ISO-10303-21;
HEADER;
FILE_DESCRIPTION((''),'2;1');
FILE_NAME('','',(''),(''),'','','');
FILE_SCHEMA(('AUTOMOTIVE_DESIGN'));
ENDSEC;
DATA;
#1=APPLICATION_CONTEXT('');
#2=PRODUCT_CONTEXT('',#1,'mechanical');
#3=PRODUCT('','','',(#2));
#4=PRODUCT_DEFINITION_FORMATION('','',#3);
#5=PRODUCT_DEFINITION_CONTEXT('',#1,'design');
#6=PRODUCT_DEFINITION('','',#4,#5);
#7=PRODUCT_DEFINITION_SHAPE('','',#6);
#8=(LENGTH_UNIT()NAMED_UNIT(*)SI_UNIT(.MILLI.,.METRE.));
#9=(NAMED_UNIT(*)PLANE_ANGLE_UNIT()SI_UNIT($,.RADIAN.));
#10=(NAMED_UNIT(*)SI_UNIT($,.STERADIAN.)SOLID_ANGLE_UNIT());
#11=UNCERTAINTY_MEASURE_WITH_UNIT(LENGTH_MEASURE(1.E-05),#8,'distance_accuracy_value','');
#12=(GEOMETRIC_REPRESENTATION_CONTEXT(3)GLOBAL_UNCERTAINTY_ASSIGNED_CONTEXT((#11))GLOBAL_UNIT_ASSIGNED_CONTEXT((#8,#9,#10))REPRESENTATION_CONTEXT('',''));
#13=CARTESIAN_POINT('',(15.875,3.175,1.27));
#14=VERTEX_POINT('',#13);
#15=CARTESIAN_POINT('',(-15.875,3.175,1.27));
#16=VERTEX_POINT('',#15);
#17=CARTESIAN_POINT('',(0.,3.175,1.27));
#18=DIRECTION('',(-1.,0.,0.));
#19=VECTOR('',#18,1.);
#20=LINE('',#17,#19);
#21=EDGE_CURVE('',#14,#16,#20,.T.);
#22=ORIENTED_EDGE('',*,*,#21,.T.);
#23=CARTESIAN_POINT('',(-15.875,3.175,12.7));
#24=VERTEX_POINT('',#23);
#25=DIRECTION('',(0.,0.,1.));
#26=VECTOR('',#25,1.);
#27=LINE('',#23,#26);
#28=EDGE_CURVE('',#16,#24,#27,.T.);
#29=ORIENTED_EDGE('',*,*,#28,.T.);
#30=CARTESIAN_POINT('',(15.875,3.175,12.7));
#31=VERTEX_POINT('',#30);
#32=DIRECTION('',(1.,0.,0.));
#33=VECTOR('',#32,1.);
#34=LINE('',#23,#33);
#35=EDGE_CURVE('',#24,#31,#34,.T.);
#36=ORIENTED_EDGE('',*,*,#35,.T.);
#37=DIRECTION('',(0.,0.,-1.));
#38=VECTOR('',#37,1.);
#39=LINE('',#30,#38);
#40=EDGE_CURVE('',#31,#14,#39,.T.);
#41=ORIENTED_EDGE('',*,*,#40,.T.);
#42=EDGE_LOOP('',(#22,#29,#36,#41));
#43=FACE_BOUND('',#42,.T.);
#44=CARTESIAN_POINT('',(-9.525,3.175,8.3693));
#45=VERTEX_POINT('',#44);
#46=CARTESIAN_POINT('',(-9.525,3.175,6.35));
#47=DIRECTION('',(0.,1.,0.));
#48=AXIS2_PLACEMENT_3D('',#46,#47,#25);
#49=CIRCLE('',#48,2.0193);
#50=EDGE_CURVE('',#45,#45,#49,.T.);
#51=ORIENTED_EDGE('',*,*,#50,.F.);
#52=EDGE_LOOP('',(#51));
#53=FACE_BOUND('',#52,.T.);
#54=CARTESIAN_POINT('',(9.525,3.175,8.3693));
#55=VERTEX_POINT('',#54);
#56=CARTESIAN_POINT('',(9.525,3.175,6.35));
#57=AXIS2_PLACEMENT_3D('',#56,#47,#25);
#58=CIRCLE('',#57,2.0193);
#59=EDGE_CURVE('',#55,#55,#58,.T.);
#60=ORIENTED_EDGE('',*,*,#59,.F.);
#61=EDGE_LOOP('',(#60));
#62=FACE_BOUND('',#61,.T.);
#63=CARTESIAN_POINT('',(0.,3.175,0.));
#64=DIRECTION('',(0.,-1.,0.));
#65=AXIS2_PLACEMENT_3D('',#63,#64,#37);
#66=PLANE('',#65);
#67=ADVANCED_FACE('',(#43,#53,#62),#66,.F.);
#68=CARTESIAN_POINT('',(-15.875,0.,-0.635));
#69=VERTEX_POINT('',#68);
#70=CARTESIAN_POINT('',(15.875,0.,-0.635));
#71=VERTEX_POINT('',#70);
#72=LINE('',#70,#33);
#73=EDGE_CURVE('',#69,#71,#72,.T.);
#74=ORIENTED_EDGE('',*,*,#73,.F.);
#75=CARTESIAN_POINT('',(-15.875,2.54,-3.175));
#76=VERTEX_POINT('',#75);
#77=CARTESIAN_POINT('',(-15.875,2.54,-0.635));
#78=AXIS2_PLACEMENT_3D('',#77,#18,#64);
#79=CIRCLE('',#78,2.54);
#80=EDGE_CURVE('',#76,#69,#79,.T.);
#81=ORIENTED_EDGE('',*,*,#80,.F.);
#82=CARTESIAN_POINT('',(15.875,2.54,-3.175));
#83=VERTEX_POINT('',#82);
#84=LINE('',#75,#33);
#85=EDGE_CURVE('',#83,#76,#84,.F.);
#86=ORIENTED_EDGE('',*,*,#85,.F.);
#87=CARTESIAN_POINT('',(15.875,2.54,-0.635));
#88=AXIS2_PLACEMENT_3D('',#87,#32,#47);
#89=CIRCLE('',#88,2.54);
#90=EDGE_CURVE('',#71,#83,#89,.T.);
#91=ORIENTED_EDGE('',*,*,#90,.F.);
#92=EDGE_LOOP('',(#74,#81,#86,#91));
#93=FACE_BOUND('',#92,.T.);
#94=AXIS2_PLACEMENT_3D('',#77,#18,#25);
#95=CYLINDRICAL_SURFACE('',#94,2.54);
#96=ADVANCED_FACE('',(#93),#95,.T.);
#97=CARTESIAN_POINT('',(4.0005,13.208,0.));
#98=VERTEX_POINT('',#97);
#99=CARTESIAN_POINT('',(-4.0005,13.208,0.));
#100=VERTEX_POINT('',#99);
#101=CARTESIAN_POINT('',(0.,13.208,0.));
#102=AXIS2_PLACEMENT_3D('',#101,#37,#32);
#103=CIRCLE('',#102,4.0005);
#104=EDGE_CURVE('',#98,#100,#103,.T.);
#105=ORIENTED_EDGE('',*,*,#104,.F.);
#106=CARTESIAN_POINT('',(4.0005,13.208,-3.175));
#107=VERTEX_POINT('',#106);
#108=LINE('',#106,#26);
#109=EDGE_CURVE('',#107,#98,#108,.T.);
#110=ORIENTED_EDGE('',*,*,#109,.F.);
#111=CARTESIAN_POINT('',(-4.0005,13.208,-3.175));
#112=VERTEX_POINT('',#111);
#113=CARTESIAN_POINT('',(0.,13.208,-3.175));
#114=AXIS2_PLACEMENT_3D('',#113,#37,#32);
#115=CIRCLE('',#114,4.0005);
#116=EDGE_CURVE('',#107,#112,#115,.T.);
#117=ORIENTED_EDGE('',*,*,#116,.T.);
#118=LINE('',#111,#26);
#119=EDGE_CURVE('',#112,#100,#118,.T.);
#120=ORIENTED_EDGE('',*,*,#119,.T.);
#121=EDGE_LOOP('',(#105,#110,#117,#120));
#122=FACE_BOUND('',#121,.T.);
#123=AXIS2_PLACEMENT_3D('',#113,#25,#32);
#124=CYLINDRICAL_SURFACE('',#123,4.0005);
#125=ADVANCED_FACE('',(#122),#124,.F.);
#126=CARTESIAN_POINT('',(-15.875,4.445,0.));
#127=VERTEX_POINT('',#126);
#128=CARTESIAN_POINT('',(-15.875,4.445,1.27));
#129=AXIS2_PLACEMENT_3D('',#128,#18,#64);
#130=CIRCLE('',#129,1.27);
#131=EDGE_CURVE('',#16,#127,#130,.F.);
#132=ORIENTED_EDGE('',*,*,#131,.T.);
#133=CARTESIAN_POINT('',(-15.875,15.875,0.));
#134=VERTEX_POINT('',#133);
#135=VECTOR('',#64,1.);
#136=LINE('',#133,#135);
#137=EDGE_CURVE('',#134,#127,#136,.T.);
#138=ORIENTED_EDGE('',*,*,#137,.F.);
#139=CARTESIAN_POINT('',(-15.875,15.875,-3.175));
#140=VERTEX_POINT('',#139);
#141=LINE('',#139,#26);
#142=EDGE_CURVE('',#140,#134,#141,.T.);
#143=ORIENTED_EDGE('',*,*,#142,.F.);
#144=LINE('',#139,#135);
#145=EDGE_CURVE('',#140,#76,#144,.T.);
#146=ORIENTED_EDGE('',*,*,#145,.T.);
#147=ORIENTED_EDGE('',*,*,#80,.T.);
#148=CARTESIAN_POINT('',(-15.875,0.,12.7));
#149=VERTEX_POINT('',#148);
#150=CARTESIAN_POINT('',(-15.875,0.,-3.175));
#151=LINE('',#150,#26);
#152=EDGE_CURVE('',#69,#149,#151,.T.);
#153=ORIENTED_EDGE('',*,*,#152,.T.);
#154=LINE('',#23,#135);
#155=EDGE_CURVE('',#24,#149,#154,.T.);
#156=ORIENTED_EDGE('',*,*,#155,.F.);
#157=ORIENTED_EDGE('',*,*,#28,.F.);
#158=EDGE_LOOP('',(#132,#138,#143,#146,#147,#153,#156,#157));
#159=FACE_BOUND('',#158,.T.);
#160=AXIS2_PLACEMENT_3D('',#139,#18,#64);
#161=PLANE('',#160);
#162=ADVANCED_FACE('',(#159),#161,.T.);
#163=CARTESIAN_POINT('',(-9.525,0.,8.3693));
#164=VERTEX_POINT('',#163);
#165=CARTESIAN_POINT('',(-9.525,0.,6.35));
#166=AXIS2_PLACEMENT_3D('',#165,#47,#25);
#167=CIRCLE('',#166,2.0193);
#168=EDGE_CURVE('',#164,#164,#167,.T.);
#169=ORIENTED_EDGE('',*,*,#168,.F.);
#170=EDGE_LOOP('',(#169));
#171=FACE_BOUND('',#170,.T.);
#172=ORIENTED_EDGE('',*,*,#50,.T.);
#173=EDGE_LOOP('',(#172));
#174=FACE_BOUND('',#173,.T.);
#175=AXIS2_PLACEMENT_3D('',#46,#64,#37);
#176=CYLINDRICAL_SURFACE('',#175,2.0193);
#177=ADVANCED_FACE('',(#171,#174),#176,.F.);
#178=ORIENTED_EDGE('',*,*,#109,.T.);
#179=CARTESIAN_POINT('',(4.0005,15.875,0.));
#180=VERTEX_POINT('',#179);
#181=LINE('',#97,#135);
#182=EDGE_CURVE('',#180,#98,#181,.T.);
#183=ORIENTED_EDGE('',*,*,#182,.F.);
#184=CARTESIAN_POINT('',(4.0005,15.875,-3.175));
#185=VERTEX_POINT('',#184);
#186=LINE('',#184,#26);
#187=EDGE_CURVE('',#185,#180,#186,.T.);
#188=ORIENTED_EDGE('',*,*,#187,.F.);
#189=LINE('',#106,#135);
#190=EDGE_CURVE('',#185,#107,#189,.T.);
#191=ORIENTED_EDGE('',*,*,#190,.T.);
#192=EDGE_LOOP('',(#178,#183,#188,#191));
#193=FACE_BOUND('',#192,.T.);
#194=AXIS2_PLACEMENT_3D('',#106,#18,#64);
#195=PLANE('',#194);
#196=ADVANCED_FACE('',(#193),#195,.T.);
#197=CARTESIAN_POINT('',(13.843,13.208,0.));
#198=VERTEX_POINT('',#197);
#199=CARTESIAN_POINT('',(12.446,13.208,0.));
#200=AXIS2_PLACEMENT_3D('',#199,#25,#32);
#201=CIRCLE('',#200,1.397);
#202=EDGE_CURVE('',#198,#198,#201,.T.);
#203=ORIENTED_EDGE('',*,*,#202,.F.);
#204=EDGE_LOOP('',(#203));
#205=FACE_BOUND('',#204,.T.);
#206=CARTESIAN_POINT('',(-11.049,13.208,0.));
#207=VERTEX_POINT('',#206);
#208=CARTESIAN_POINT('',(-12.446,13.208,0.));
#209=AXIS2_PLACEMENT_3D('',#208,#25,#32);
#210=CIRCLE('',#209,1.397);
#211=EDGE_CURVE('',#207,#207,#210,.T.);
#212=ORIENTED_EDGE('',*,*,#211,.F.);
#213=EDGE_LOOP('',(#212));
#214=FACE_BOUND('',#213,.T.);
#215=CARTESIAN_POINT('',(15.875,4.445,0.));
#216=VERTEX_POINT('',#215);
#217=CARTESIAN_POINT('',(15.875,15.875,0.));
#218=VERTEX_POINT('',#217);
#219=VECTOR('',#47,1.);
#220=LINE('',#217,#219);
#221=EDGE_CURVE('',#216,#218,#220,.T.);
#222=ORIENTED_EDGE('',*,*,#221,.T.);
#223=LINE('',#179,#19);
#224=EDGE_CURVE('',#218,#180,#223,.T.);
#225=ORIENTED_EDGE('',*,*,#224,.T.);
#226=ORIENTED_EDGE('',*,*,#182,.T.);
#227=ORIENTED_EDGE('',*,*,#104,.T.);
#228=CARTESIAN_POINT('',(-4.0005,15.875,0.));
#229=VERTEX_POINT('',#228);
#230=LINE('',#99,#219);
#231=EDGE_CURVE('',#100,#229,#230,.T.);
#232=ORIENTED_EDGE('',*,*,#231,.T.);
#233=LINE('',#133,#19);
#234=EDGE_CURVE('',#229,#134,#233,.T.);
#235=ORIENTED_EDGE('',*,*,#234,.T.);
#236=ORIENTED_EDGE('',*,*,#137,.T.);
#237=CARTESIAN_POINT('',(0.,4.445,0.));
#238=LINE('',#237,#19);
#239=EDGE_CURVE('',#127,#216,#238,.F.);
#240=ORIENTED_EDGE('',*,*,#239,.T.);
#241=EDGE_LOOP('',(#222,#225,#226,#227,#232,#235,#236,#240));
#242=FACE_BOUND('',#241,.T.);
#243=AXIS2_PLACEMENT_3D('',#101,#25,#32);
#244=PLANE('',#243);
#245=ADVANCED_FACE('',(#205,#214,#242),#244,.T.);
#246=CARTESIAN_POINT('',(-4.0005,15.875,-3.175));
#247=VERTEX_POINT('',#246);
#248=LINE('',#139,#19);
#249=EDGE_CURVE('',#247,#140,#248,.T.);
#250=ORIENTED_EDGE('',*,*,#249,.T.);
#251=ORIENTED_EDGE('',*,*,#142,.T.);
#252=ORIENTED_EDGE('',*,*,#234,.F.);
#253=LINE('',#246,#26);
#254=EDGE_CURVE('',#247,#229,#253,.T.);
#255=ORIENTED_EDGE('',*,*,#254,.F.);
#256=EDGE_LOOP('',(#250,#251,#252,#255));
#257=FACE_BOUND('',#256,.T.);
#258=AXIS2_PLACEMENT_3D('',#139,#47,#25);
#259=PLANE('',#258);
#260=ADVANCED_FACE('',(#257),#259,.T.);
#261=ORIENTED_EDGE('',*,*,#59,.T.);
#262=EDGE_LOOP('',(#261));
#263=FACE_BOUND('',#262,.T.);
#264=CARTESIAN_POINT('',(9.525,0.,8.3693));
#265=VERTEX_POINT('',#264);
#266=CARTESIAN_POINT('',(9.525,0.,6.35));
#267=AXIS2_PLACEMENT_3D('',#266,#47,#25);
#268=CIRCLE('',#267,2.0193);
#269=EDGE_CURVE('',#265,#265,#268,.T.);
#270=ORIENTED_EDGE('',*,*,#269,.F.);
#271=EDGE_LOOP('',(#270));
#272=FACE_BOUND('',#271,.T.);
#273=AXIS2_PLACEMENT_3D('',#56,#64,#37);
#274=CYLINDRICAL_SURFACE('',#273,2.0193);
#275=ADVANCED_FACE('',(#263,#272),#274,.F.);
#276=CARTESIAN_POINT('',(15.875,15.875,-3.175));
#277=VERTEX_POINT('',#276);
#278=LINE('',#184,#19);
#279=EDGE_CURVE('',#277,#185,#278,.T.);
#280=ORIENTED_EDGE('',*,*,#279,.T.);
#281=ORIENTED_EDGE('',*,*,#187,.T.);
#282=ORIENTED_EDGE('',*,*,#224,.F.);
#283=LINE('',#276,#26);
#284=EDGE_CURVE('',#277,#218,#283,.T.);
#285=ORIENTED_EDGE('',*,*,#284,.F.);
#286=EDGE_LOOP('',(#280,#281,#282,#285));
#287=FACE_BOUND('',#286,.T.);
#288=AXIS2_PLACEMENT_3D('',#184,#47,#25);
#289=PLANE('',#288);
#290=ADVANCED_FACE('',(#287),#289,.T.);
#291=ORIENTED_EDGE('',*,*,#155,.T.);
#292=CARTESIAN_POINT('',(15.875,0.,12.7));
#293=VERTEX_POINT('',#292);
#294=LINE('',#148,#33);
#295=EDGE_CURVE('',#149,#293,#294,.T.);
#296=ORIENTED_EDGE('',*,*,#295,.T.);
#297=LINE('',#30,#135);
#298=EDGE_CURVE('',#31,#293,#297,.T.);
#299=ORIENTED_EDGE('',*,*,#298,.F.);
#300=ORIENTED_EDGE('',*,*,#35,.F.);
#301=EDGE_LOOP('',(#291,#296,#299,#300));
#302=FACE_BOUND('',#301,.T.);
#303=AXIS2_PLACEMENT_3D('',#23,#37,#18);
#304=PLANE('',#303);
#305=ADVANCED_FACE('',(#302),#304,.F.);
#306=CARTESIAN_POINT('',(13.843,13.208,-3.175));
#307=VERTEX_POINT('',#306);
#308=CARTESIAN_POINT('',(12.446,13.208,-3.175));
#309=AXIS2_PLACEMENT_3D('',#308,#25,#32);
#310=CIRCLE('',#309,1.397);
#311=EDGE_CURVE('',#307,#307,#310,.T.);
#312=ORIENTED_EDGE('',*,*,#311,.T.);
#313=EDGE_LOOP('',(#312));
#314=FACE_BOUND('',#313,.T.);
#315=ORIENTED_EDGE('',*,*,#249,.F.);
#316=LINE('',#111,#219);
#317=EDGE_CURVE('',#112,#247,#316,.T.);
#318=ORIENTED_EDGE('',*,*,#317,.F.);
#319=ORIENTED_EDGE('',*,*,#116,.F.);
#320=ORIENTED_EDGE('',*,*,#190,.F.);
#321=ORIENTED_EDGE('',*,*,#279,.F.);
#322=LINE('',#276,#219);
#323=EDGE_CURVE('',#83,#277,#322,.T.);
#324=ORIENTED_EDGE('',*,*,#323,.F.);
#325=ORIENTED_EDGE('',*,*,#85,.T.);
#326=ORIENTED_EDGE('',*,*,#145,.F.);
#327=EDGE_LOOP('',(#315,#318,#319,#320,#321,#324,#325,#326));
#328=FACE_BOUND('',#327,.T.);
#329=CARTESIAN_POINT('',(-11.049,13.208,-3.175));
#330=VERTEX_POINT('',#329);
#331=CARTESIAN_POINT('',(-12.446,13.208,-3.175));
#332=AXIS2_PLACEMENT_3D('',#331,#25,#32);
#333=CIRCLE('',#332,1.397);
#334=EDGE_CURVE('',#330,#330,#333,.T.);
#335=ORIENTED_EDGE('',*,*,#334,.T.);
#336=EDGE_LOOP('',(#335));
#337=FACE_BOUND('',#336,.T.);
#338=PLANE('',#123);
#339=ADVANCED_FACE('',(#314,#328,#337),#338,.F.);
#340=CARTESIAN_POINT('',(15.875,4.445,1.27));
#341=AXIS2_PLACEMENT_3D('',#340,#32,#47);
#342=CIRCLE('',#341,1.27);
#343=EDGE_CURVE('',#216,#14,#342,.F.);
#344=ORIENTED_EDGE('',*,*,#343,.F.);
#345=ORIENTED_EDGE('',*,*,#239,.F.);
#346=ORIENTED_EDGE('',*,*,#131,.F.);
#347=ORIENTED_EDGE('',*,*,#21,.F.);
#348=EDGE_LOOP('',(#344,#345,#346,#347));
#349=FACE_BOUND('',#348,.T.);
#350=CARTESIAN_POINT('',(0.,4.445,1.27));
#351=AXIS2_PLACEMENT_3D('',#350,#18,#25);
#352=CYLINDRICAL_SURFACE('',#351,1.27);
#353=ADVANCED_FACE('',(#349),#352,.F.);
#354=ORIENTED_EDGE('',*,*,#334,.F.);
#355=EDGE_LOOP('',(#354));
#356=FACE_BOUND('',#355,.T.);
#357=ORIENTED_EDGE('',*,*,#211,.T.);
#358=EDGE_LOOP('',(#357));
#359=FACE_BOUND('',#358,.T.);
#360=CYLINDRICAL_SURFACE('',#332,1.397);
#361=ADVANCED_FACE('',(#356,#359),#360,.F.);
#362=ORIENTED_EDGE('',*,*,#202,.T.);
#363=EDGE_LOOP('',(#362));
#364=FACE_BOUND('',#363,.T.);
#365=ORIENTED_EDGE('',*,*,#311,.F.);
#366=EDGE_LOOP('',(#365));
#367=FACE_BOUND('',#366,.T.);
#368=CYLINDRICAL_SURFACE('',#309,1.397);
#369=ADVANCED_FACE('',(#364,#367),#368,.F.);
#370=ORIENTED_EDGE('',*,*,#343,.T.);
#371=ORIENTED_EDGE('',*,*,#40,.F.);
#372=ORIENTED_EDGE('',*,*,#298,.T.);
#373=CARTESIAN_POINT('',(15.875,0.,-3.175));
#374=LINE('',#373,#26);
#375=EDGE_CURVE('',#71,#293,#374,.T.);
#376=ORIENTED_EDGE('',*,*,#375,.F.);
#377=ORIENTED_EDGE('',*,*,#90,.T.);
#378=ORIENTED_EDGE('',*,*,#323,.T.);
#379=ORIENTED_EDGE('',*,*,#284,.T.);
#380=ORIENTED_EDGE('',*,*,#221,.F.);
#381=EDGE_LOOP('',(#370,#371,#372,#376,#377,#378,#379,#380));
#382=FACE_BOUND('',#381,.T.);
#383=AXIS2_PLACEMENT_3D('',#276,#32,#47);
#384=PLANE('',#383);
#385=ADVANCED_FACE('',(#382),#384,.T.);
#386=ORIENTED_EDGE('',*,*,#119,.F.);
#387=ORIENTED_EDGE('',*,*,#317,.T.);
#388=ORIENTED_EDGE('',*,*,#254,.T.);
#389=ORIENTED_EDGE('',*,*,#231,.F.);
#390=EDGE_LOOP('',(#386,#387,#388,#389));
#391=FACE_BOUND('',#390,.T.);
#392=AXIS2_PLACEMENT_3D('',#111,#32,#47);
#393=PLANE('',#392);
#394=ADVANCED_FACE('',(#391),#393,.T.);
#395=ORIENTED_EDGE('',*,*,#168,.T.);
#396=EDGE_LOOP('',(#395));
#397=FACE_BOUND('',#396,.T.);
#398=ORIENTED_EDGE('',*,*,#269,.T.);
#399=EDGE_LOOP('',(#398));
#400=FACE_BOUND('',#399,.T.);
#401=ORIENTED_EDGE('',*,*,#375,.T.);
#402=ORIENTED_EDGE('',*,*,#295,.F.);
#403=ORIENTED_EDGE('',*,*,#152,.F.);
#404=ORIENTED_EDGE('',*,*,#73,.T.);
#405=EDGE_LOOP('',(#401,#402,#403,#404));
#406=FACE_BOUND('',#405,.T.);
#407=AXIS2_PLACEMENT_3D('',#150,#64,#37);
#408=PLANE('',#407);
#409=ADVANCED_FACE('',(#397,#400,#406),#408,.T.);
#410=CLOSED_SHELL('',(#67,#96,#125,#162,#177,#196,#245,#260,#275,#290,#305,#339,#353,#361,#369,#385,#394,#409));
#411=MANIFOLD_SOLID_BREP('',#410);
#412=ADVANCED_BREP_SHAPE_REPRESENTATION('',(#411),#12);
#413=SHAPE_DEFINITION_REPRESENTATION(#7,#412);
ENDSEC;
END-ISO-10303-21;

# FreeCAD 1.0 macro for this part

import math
import FreeCAD as App
import Part
import Sketcher
Q = App.Units.Quantity


def edges_at(feature, points):
    """Names of the edges that pass closest to the given points."""
    edges = feature.Shape.Edges
    near = lambda p: min(range(len(edges)), key=lambda i: edges[i].distToShape(Part.Vertex(*p))[0])
    return sorted({f"Edge{near(p) + 1}" for p in points})


def add_polygon(sketch, points):
    """Adds a closed chain of lines whose ends are joined by coincident constraints."""
    first, n = sketch.GeometryCount, len(points)
    for a, b in zip(points, points[1:] + points[:1]):
        sketch.addGeometry(Part.LineSegment(App.Vector(*a, 0), App.Vector(*b, 0)), False)
    for i in range(n):
        sketch.addConstraint(Sketcher.Constraint("Coincident", first + i, 2, first + (i + 1) % n, 1))

doc = App.newDocument("Part")
body = doc.addObject("PartDesign::Body", "Body")

# Sketch on XY plane
sketch1 = doc.addObject("Sketcher::SketchObject", "Sketch")
body.addObject(sketch1)
sketch1.AttachmentSupport = (doc.XY_Plane, [""])
sketch1.MapMode = "FlatFace"
sketch1.addGeometry([
    Part.LineSegment(App.Vector(-4, 13.2, 0), App.Vector(-4, 15.9, 0)),  # 0
    Part.LineSegment(App.Vector(-4, 15.9, 0), App.Vector(-15.9, 15.9, 0)),  # 1
    Part.LineSegment(App.Vector(-15.9, 15.9, 0), App.Vector(-15.9, 0, 0)),  # 2
    Part.LineSegment(App.Vector(-15.9, 0, 0), App.Vector(15.9, 0, 0)),  # 3
    Part.LineSegment(App.Vector(15.9, 0, 0), App.Vector(15.9, 15.9, 0)),  # 4
    Part.LineSegment(App.Vector(15.9, 15.9, 0), App.Vector(4, 15.9, 0)),  # 5
    Part.LineSegment(App.Vector(4, 15.9, 0), App.Vector(4, 13.2, 0)),  # 6
    Part.ArcOfCircle(Part.Circle(App.Vector(0, 13.2, 0), App.Vector(0, 0, 1), 4), math.radians(180), math.radians(360)),  # 7
    Part.Circle(App.Vector(-12.4, 13.2, 0), App.Vector(0, 0, 1), 1.4),  # 8
    Part.Circle(App.Vector(12.4, 13.2, 0), App.Vector(0, 0, 1), 1.4),  # 9
], False)
sketch1.addConstraint([
    Sketcher.Constraint("Coincident", 0, 2, 1, 1),
    Sketcher.Constraint("Coincident", 1, 2, 2, 1),
    Sketcher.Constraint("Coincident", 2, 2, 3, 1),
    Sketcher.Constraint("Coincident", 3, 2, 4, 1),
    Sketcher.Constraint("Coincident", 4, 2, 5, 1),
    Sketcher.Constraint("Coincident", 5, 2, 6, 1),
    Sketcher.Constraint("Tangent", 6, 2, 7, 2),
    Sketcher.Constraint("Tangent", 7, 1, 0, 1),
    Sketcher.Constraint("Vertical", 0),
    Sketcher.Constraint("Horizontal", 1),
    Sketcher.Constraint("Vertical", 2),
    Sketcher.Constraint("Horizontal", 3),
    Sketcher.Constraint("Vertical", 4),
    Sketcher.Constraint("Horizontal", 5),
    Sketcher.Constraint("Vertical", 6),
    Sketcher.Constraint("Equal", 8, 9),
    Sketcher.Constraint("Symmetric", 2, 2, 3, 2, -1, 1),
    Sketcher.Constraint("Symmetric", 8, 3, 9, 3, -2),
    Sketcher.Constraint("Symmetric", 0, 2, 5, 2, -2),
    Sketcher.Constraint("Horizontal", 7, 3, 8, 3),
    Sketcher.Constraint("Diameter", 8, Q("0.11 in")),
    Sketcher.Constraint("DistanceX", 3, 1, 3, 2, Q("1.25 in")),
    Sketcher.Constraint("Radius", 7, Q("0.1575 in")),
    Sketcher.Constraint("DistanceY", 0, 1, 0, 2, Q("0.105 in")),
    Sketcher.Constraint("DistanceY", 2, 2, 2, 1, Q("0.625 in")),
    Sketcher.Constraint("DistanceX", 8, 3, -1, 1, Q("0.49 in")),
])
pad1 = doc.addObject("PartDesign::Pad", "Pad")
body.addObject(pad1)
pad1.Profile = sketch1
pad1.Length = Q("0.125 in")
pad1.Reversed = True

# Sketch on XZ plane
sketch2 = doc.addObject("Sketcher::SketchObject", "Sketch001")
body.addObject(sketch2)
sketch2.AttachmentSupport = (doc.XZ_Plane, [""])
sketch2.MapMode = "FlatFace"
add_polygon(sketch2, [(-15.9, 0), (-15.9, 12.7), (15.9, 12.7), (15.9, 0)])  # lines 0-3
sketch2.addGeometry(Part.Circle(App.Vector(-9.5, 6.3, 0), App.Vector(0, 0, 1), 2), False)  # 4
sketch2.addGeometry(Part.Circle(App.Vector(9.5, 6.3, 0), App.Vector(0, 0, 1), 2), False)  # 5
sketch2.addConstraint([
    Sketcher.Constraint("Vertical", 0),
    Sketcher.Constraint("Horizontal", 1),
    Sketcher.Constraint("Vertical", 2),
    Sketcher.Constraint("Horizontal", 3),
    Sketcher.Constraint("Equal", 4, 5),
    Sketcher.Constraint("Symmetric", 2, 2, 3, 2, -1, 1),
    Sketcher.Constraint("Symmetric", 4, 3, 5, 3, -2),
    Sketcher.Constraint("Diameter", 4, Q("0.159 in")),
    Sketcher.Constraint("DistanceY", 0, 1, 0, 2, Q("0.5 in")),
    Sketcher.Constraint("DistanceX", 0, 2, 5, 3, Q("1 in")),
    Sketcher.Constraint("DistanceX", 1, 1, 1, 2, Q("1.25 in")),
    Sketcher.Constraint("DistanceY", -1, 1, 4, 3, Q("0.25 in")),
])
pad2 = doc.addObject("PartDesign::Pad", "Pad001")
body.addObject(pad2)
pad2.Profile = sketch2
pad2.Length = Q("0.125 in")
pad2.Reversed = True
doc.recompute()

fillet = doc.addObject("PartDesign::Fillet", "Fillet")
body.addObject(fillet)
fillet.Base = (pad2, edges_at(pad2, [(0, 3.175, 0)]))
fillet.Radius = Q("0.05 in")
doc.recompute()

fillet2 = doc.addObject("PartDesign::Fillet", "Fillet001")
body.addObject(fillet2)
fillet2.Base = (fillet, edges_at(fillet, [(0, 0, -3.175)]))
fillet2.Radius = Q("0.1 in")

doc.recompute()
